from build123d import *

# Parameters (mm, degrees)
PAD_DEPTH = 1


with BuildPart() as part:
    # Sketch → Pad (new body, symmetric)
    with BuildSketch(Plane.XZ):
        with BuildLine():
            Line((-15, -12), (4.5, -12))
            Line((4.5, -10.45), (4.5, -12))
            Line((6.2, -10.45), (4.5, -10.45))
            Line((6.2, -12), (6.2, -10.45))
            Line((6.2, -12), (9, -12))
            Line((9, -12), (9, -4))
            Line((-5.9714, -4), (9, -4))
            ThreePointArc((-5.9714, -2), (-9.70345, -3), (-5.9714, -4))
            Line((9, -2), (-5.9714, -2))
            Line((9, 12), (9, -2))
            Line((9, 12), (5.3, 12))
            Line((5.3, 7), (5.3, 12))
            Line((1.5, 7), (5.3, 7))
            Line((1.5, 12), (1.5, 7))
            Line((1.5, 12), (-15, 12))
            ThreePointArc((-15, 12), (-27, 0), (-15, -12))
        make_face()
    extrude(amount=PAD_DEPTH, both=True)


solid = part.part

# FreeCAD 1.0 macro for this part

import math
import FreeCAD as App
import Part
import Sketcher

V = App.Vector

doc = App.newDocument("Part")
body = doc.addObject("PartDesign::Body", "Body")

# Sketch on XZ plane
sketch1 = body.newObject("Sketcher::SketchObject", "Sketch")
sketch1.AttachmentSupport = (doc.getObject("XZ_Plane"), [""])
sketch1.MapMode = "FlatFace"
sketch1.addGeometry(Part.LineSegment(V(-15, -12, 0), V(4.5, -12, 0)), False)
sketch1.addGeometry(Part.LineSegment(V(4.5, -12, 0), V(4.5, -10.4, 0)), False)
sketch1.addGeometry(Part.LineSegment(V(4.5, -10.4, 0), V(6.2, -10.4, 0)), False)
sketch1.addGeometry(Part.LineSegment(V(6.2, -10.4, 0), V(6.2, -12, 0)), False)
sketch1.addGeometry(Part.LineSegment(V(6.2, -12, 0), V(9, -12, 0)), False)
sketch1.addGeometry(Part.LineSegment(V(9, -12, 0), V(9, -4, 0)), False)
sketch1.addGeometry(Part.LineSegment(V(9, -4, 0), V(-6, -4, 0)), False)
sketch1.addGeometry(Part.ArcOfCircle(Part.Circle(V(-7.7, -3, 0), V(0, 0, 1), 2), math.radians(30), math.radians(330)), False)
sketch1.addGeometry(Part.LineSegment(V(-6, -2, 0), V(9, -2, 0)), False)
sketch1.addGeometry(Part.LineSegment(V(9, -2, 0), V(9, 12, 0)), False)
sketch1.addGeometry(Part.LineSegment(V(9, 12, 0), V(5.3, 12, 0)), False)
sketch1.addGeometry(Part.LineSegment(V(5.3, 12, 0), V(5.3, 7, 0)), False)
sketch1.addGeometry(Part.LineSegment(V(5.3, 7, 0), V(1.5, 7, 0)), False)
sketch1.addGeometry(Part.LineSegment(V(1.5, 7, 0), V(1.5, 12, 0)), False)
sketch1.addGeometry(Part.LineSegment(V(1.5, 12, 0), V(-15, 12, 0)), False)
sketch1.addGeometry(Part.ArcOfCircle(Part.Circle(V(-15, 0, 0), V(0, 0, 1), 12), math.radians(90), math.radians(270)), False)
sketch1.addConstraint(Sketcher.Constraint("Coincident", 0, 2, 1, 1))
sketch1.addConstraint(Sketcher.Constraint("Coincident", 1, 2, 2, 1))
sketch1.addConstraint(Sketcher.Constraint("Coincident", 2, 2, 3, 1))
sketch1.addConstraint(Sketcher.Constraint("Coincident", 3, 2, 4, 1))
sketch1.addConstraint(Sketcher.Constraint("Coincident", 4, 2, 5, 1))
sketch1.addConstraint(Sketcher.Constraint("Coincident", 5, 2, 6, 1))
sketch1.addConstraint(Sketcher.Constraint("Coincident", 6, 2, 7, 2))
sketch1.addConstraint(Sketcher.Constraint("Coincident", 7, 1, 8, 1))
sketch1.addConstraint(Sketcher.Constraint("Coincident", 8, 2, 9, 1))
sketch1.addConstraint(Sketcher.Constraint("Coincident", 9, 2, 10, 1))
sketch1.addConstraint(Sketcher.Constraint("Coincident", 10, 2, 11, 1))
sketch1.addConstraint(Sketcher.Constraint("Coincident", 11, 2, 12, 1))
sketch1.addConstraint(Sketcher.Constraint("Coincident", 12, 2, 13, 1))
sketch1.addConstraint(Sketcher.Constraint("Coincident", 13, 2, 14, 1))
sketch1.addConstraint(Sketcher.Constraint("Tangent", 14, 2, 15, 1))
sketch1.addConstraint(Sketcher.Constraint("Tangent", 15, 2, 0, 1))
sketch1.addConstraint(Sketcher.Constraint("Horizontal", 0))
sketch1.addConstraint(Sketcher.Constraint("Vertical", 1))
sketch1.addConstraint(Sketcher.Constraint("Horizontal", 2))
sketch1.addConstraint(Sketcher.Constraint("Vertical", 3))
sketch1.addConstraint(Sketcher.Constraint("Horizontal", 4))
sketch1.addConstraint(Sketcher.Constraint("Vertical", 5))
sketch1.addConstraint(Sketcher.Constraint("Horizontal", 6))
sketch1.addConstraint(Sketcher.Constraint("Horizontal", 8))
sketch1.addConstraint(Sketcher.Constraint("Vertical", 9))
sketch1.addConstraint(Sketcher.Constraint("Horizontal", 10))
sketch1.addConstraint(Sketcher.Constraint("Vertical", 11))
sketch1.addConstraint(Sketcher.Constraint("Horizontal", 12))
sketch1.addConstraint(Sketcher.Constraint("Vertical", 13))
sketch1.addConstraint(Sketcher.Constraint("Horizontal", 14))
sketch1.addConstraint(Sketcher.Constraint("Symmetric", 4, 2, 9, 2, -1))
sketch1.addConstraint(Sketcher.Constraint("PointOnObject", 15, 3, -1))
sketch1.addConstraint(Sketcher.Constraint("Horizontal", 0, 2, 3, 2))
sketch1.addConstraint(Sketcher.Constraint("Vertical", 6, 2, 7, 1))
sketch1.addConstraint(Sketcher.Constraint("Radius", 7, 2.0))
sketch1.addConstraint(Sketcher.Constraint("Radius", 15, 12.0))
sketch1.addConstraint(Sketcher.Constraint("DistanceY", 5, 1, 5, 2, 8.0))
sketch1.addConstraint(Sketcher.Constraint("DistanceY", 9, 1, 9, 2, 14.0))
sketch1.addConstraint(Sketcher.Constraint("DistanceY", 11, 2, 11, 1, 5.0))
sketch1.addConstraint(Sketcher.Constraint("DistanceX", 0, 1, 0, 2, 19.5))
sketch1.addConstraint(Sketcher.Constraint("DistanceX", 2, 1, 2, 2, 1.7))
sketch1.addConstraint(Sketcher.Constraint("DistanceX", 4, 1, 4, 2, 2.8))
sketch1.addConstraint(Sketcher.Constraint("DistanceX", 10, 2, 10, 1, 3.7))
sketch1.addConstraint(Sketcher.Constraint("DistanceX", 12, 2, 12, 1, 3.8))
sketch1.addConstraint(Sketcher.Constraint("DistanceX", 15, 3, -1, 1, 15.0))
sketch1.addConstraint(Sketcher.Constraint("DistanceY", 1, 1, 1, 2, 1.55))
sketch1.addConstraint(Sketcher.Constraint("DistanceX", 6, 2, 6, 1, 14.9714))
pad1 = body.newObject("PartDesign::Pad", "Pad")
pad1.Profile = sketch1
pad1.Length = 2
pad1.Midplane = True

doc.recompute()
